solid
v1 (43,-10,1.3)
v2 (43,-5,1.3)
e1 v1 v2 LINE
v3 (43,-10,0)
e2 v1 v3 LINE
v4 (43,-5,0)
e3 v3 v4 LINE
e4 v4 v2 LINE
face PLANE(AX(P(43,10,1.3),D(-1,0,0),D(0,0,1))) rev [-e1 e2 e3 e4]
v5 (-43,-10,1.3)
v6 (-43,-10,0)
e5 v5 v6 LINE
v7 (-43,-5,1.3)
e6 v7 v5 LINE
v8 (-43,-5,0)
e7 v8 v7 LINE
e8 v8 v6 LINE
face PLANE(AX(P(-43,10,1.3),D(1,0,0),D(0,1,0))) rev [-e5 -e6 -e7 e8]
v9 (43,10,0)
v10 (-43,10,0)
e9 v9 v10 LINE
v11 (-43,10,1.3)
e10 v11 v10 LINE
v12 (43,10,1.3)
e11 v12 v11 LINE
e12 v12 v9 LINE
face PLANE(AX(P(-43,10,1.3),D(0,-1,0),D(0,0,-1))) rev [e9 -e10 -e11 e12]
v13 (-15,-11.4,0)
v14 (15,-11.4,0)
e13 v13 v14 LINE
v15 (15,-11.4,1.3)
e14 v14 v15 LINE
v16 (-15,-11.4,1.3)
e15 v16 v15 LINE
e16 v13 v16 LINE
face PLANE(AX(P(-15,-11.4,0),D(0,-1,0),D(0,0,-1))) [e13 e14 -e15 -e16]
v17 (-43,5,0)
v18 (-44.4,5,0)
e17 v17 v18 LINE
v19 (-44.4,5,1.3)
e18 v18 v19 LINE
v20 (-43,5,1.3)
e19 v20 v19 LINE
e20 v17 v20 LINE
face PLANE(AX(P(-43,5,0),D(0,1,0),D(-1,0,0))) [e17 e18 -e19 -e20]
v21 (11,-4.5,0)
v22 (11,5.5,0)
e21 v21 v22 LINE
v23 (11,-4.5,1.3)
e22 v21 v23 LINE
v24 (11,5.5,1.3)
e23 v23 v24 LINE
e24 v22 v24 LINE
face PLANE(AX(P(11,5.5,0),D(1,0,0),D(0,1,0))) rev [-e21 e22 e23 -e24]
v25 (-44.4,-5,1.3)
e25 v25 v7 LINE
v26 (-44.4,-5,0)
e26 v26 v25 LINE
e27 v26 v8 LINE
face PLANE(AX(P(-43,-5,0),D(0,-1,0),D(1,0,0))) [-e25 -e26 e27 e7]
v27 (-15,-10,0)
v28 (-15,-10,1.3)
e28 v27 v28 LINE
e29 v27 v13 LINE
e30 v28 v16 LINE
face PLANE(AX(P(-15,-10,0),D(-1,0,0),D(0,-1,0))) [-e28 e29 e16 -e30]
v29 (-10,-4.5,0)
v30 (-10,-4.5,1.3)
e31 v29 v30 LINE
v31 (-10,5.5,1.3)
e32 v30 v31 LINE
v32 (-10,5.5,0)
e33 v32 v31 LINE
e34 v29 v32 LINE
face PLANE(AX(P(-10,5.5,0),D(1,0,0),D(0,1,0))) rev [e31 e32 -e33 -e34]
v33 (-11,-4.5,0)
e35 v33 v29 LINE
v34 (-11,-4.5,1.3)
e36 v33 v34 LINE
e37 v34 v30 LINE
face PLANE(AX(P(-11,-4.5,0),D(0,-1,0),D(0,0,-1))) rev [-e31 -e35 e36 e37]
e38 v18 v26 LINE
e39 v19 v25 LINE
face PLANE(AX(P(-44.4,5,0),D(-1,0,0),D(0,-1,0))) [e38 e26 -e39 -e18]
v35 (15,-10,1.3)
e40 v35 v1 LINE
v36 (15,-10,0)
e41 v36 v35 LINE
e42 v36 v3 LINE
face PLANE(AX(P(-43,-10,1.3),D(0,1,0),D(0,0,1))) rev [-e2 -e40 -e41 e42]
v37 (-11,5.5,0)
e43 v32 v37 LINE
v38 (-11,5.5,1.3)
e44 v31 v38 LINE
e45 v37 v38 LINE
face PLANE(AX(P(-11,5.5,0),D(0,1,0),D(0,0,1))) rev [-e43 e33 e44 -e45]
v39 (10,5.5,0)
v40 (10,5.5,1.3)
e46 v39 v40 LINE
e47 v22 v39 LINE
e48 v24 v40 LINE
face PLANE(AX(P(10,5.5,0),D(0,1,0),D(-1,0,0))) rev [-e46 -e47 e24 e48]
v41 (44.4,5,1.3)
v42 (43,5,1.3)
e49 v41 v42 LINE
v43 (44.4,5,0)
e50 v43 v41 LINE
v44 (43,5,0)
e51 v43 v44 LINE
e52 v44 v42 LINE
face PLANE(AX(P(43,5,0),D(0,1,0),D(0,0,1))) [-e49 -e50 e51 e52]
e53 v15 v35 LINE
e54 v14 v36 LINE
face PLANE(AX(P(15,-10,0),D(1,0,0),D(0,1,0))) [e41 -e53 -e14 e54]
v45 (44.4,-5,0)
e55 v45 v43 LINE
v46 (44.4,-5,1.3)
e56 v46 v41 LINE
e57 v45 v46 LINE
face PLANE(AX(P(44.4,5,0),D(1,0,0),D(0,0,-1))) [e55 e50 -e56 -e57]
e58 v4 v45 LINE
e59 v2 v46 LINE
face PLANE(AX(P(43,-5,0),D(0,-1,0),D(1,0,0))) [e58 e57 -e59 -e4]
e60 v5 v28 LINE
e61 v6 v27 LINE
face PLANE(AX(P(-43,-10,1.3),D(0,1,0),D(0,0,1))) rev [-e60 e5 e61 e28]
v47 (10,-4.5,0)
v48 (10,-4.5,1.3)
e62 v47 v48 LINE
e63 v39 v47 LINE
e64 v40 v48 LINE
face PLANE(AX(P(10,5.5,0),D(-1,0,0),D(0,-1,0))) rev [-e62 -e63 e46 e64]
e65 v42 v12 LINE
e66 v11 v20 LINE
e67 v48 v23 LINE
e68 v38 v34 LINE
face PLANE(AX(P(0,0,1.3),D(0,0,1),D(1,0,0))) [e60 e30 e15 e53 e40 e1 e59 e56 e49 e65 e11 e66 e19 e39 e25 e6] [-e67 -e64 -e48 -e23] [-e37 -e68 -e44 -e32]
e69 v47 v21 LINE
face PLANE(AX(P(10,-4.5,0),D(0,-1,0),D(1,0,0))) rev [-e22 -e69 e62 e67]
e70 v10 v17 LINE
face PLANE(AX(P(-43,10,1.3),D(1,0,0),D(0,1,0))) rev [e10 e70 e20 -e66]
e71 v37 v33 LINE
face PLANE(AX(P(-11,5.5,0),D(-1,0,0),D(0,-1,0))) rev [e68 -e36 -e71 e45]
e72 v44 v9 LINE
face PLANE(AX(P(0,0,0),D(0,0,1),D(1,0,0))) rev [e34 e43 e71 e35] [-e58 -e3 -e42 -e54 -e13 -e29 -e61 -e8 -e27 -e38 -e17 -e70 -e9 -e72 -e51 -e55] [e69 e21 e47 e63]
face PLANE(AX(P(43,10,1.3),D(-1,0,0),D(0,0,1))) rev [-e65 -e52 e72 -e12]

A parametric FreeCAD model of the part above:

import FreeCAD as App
import Part
import Sketcher
Q = App.Units.Quantity

doc = App.newDocument("Part")
params = doc.addObject("Spreadsheet::Sheet", "Params")
for row, (alias, value) in enumerate([
    ("sketch1_width", "86 mm"),
    ("sketch1_height", "20 mm"),
    ("pad1_length", "1.3 mm"),
    ("sketch2_width", "30 mm"),
    ("sketch2_height", "10 mm"),
    ("sketch2_width2", "1.4 mm"),
    ("pad2_length", "1.3 mm"),
    ("sketch3_width", "1 mm"),
    ("sketch3_height", "10 mm"),
], start=1):
    params.set(f"A{row}", alias)
    params.set(f"B{row}", "=" + value)
    params.setAlias(f"B{row}", alias)

body = doc.addObject("PartDesign::Body", "Body")

# Sketch on XY plane
sketch1 = body.newObject("Sketcher::SketchObject", "Sketch")
sketch1.AttachmentSupport = (doc.getObject("XY_Plane"), [""])
sketch1.MapMode = "FlatFace"
sketch1.addGeometry(Part.LineSegment(App.Vector(-43, 10, 0), App.Vector(-43, -10, 0)), False)
sketch1.addGeometry(Part.LineSegment(App.Vector(-43, -10, 0), App.Vector(43, -10, 0)), False)
sketch1.addGeometry(Part.LineSegment(App.Vector(43, -10, 0), App.Vector(43, 10, 0)), False)
sketch1.addGeometry(Part.LineSegment(App.Vector(43, 10, 0), App.Vector(-43, 10, 0)), False)
sketch1.addConstraint(Sketcher.Constraint("Coincident", 0, 2, 1, 1))
sketch1.addConstraint(Sketcher.Constraint("Coincident", 1, 2, 2, 1))
sketch1.addConstraint(Sketcher.Constraint("Coincident", 2, 2, 3, 1))
sketch1.addConstraint(Sketcher.Constraint("Coincident", 3, 2, 0, 1))
sketch1.addConstraint(Sketcher.Constraint("Vertical", 0))
sketch1.addConstraint(Sketcher.Constraint("Horizontal", 1))
sketch1.addConstraint(Sketcher.Constraint("Vertical", 2))
sketch1.addConstraint(Sketcher.Constraint("Horizontal", 3))
sketch1.addConstraint(Sketcher.Constraint("Symmetric", 0, 2, 2, 2, -1, 1))
sketch1.addConstraint(Sketcher.Constraint("DistanceX", 1, 1, 1, 2, Q("86 mm")))
sketch1.addConstraint(Sketcher.Constraint("DistanceY", 0, 2, 0, 1, Q("20 mm")))
sketch1.setExpression("Constraints[9]", "Params.sketch1_width")
sketch1.setExpression("Constraints[10]", "Params.sketch1_height")
pad1 = body.newObject("PartDesign::Pad", "Pad")
pad1.Profile = sketch1
pad1.setExpression("Length", "Params.pad1_length")

# Sketch on XY plane
sketch2 = body.newObject("Sketcher::SketchObject", "Sketch001")
sketch2.AttachmentSupport = (doc.getObject("XY_Plane"), [""])
sketch2.MapMode = "FlatFace"
sketch2.AttachmentOffset = App.Placement(App.Vector(0, 0, 1.3), App.Rotation())
sketch2.addGeometry(Part.LineSegment(App.Vector(-15, -10, 0), App.Vector(-15, -11.4, 0)), False)
sketch2.addGeometry(Part.LineSegment(App.Vector(-15, -11.4, 0), App.Vector(15, -11.4, 0)), False)
sketch2.addGeometry(Part.LineSegment(App.Vector(15, -11.4, 0), App.Vector(15, -10, 0)), False)
sketch2.addGeometry(Part.LineSegment(App.Vector(15, -10, 0), App.Vector(-15, -10, 0)), False)
sketch2.addGeometry(Part.LineSegment(App.Vector(-44.4, 5, 0), App.Vector(-44.4, -5, 0)), False)
sketch2.addGeometry(Part.LineSegment(App.Vector(-44.4, -5, 0), App.Vector(-43, -5, 0)), False)
sketch2.addGeometry(Part.LineSegment(App.Vector(-43, -5, 0), App.Vector(-43, 5, 0)), False)
sketch2.addGeometry(Part.LineSegment(App.Vector(-43, 5, 0), App.Vector(-44.4, 5, 0)), False)
sketch2.addGeometry(Part.LineSegment(App.Vector(43, 5, 0), App.Vector(43, -5, 0)), False)
sketch2.addGeometry(Part.LineSegment(App.Vector(43, -5, 0), App.Vector(44.4, -5, 0)), False)
sketch2.addGeometry(Part.LineSegment(App.Vector(44.4, -5, 0), App.Vector(44.4, 5, 0)), False)
sketch2.addGeometry(Part.LineSegment(App.Vector(44.4, 5, 0), App.Vector(43, 5, 0)), False)
sketch2.addConstraint(Sketcher.Constraint("Coincident", 0, 2, 1, 1))
sketch2.addConstraint(Sketcher.Constraint("Coincident", 1, 2, 2, 1))
sketch2.addConstraint(Sketcher.Constraint("Coincident", 2, 2, 3, 1))
sketch2.addConstraint(Sketcher.Constraint("Coincident", 3, 2, 0, 1))
sketch2.addConstraint(Sketcher.Constraint("Coincident", 4, 2, 5, 1))
sketch2.addConstraint(Sketcher.Constraint("Coincident", 5, 2, 6, 1))
sketch2.addConstraint(Sketcher.Constraint("Coincident", 6, 2, 7, 1))
sketch2.addConstraint(Sketcher.Constraint("Coincident", 7, 2, 4, 1))
sketch2.addConstraint(Sketcher.Constraint("Coincident", 8, 2, 9, 1))
sketch2.addConstraint(Sketcher.Constraint("Coincident", 9, 2, 10, 1))
sketch2.addConstraint(Sketcher.Constraint("Coincident", 10, 2, 11, 1))
sketch2.addConstraint(Sketcher.Constraint("Coincident", 11, 2, 8, 1))
sketch2.addConstraint(Sketcher.Constraint("Vertical", 0))
sketch2.addConstraint(Sketcher.Constraint("Horizontal", 1))
sketch2.addConstraint(Sketcher.Constraint("Vertical", 2))
sketch2.addConstraint(Sketcher.Constraint("Horizontal", 3))
sketch2.addConstraint(Sketcher.Constraint("Vertical", 4))
sketch2.addConstraint(Sketcher.Constraint("Horizontal", 5))
sketch2.addConstraint(Sketcher.Constraint("Vertical", 6))
sketch2.addConstraint(Sketcher.Constraint("Horizontal", 7))
sketch2.addConstraint(Sketcher.Constraint("Vertical", 8))
sketch2.addConstraint(Sketcher.Constraint("Horizontal", 9))
sketch2.addConstraint(Sketcher.Constraint("Vertical", 10))
sketch2.addConstraint(Sketcher.Constraint("Horizontal", 11))
sketch2.addConstraint(Sketcher.Constraint("Symmetric", 6, 2, 8, 2, -1, 1))
sketch2.addConstraint(Sketcher.Constraint("Symmetric", 4, 2, 10, 2, -1, 1))
sketch2.addConstraint(Sketcher.Constraint("Horizontal", 5, 2, 8, 2))
sketch2.addConstraint(Sketcher.Constraint("Equal", 11, 0))
sketch2.addConstraint(Sketcher.Constraint("DistanceX", 1, 1, 1, 2, Q("30 mm")))
sketch2.addConstraint(Sketcher.Constraint("DistanceY", 4, 2, 4, 1, Q("10 mm")))
sketch2.addConstraint(Sketcher.Constraint("DistanceX", 5, 1, 5, 2, Q("1.4 mm")))
sketch2.addConstraint(Sketcher.Constraint("DistanceX", 0, 2, -1, 1, Q("15 mm")))
sketch2.addConstraint(Sketcher.Constraint("DistanceY", 2, 2, -1, 1, Q("10 mm")))
sketch2.addConstraint(Sketcher.Constraint("DistanceX", 5, 2, -1, 1, Q("43 mm")))
sketch2.setExpression("Constraints[28]", "Params.sketch2_width")
sketch2.setExpression("Constraints[29]", "Params.sketch2_height")
sketch2.setExpression("Constraints[30]", "Params.sketch2_width2")
pad2 = body.newObject("PartDesign::Pad", "Pad001")
pad2.Profile = sketch2
pad2.setExpression("Length", "Params.pad2_length")
pad2.Reversed = True

# Sketch on XY plane
sketch3 = body.newObject("Sketcher::SketchObject", "Sketch002")
sketch3.AttachmentSupport = (doc.getObject("XY_Plane"), [""])
sketch3.MapMode = "FlatFace"
sketch3.AttachmentOffset = App.Placement(App.Vector(0, 0, 1.3), App.Rotation())
sketch3.addGeometry(Part.LineSegment(App.Vector(-11, 5.5, 0), App.Vector(-11, -4.5, 0)), False)
sketch3.addGeometry(Part.LineSegment(App.Vector(-11, -4.5, 0), App.Vector(-10, -4.5, 0)), False)
sketch3.addGeometry(Part.LineSegment(App.Vector(-10, -4.5, 0), App.Vector(-10, 5.5, 0)), False)
sketch3.addGeometry(Part.LineSegment(App.Vector(-10, 5.5, 0), App.Vector(-11, 5.5, 0)), False)
sketch3.addGeometry(Part.LineSegment(App.Vector(10, 5.5, 0), App.Vector(10, -4.5, 0)), False)
sketch3.addGeometry(Part.LineSegment(App.Vector(10, -4.5, 0), App.Vector(11, -4.5, 0)), False)
sketch3.addGeometry(Part.LineSegment(App.Vector(11, -4.5, 0), App.Vector(11, 5.5, 0)), False)
sketch3.addGeometry(Part.LineSegment(App.Vector(11, 5.5, 0), App.Vector(10, 5.5, 0)), False)
sketch3.addConstraint(Sketcher.Constraint("Coincident", 0, 2, 1, 1))
sketch3.addConstraint(Sketcher.Constraint("Coincident", 1, 2, 2, 1))
sketch3.addConstraint(Sketcher.Constraint("Coincident", 2, 2, 3, 1))
sketch3.addConstraint(Sketcher.Constraint("Coincident", 3, 2, 0, 1))
sketch3.addConstraint(Sketcher.Constraint("Coincident", 4, 2, 5, 1))
sketch3.addConstraint(Sketcher.Constraint("Coincident", 5, 2, 6, 1))
sketch3.addConstraint(Sketcher.Constraint("Coincident", 6, 2, 7, 1))
sketch3.addConstraint(Sketcher.Constraint("Coincident", 7, 2, 4, 1))
sketch3.addConstraint(Sketcher.Constraint("Vertical", 0))
sketch3.addConstraint(Sketcher.Constraint("Horizontal", 1))
sketch3.addConstraint(Sketcher.Constraint("Vertical", 2))
sketch3.addConstraint(Sketcher.Constraint("Horizontal", 3))
sketch3.addConstraint(Sketcher.Constraint("Vertical", 4))
sketch3.addConstraint(Sketcher.Constraint("Horizontal", 5))
sketch3.addConstraint(Sketcher.Constraint("Vertical", 6))
sketch3.addConstraint(Sketcher.Constraint("Horizontal", 7))
sketch3.addConstraint(Sketcher.Constraint("Symmetric", 1, 2, 4, 2, -2))
sketch3.addConstraint(Sketcher.Constraint("Symmetric", 3, 2, 6, 2, -2))
sketch3.addConstraint(Sketcher.Constraint("DistanceX", 1, 1, 1, 2, Q("1 mm")))
sketch3.addConstraint(Sketcher.Constraint("DistanceY", 0, 2, 0, 1, Q("10 mm")))
sketch3.addConstraint(Sketcher.Constraint("DistanceX", 0, 2, -1, 1, Q("11 mm")))
sketch3.addConstraint(Sketcher.Constraint("DistanceY", 0, 2, -1, 1, Q("4.5 mm")))
sketch3.setExpression("Constraints[18]", "Params.sketch3_width")
sketch3.setExpression("Constraints[19]", "Params.sketch3_height")
pocket1 = body.newObject("PartDesign::Pocket", "Pocket")
pocket1.Profile = sketch3
pocket1.Type = "ThroughAll"

doc.recompute()
